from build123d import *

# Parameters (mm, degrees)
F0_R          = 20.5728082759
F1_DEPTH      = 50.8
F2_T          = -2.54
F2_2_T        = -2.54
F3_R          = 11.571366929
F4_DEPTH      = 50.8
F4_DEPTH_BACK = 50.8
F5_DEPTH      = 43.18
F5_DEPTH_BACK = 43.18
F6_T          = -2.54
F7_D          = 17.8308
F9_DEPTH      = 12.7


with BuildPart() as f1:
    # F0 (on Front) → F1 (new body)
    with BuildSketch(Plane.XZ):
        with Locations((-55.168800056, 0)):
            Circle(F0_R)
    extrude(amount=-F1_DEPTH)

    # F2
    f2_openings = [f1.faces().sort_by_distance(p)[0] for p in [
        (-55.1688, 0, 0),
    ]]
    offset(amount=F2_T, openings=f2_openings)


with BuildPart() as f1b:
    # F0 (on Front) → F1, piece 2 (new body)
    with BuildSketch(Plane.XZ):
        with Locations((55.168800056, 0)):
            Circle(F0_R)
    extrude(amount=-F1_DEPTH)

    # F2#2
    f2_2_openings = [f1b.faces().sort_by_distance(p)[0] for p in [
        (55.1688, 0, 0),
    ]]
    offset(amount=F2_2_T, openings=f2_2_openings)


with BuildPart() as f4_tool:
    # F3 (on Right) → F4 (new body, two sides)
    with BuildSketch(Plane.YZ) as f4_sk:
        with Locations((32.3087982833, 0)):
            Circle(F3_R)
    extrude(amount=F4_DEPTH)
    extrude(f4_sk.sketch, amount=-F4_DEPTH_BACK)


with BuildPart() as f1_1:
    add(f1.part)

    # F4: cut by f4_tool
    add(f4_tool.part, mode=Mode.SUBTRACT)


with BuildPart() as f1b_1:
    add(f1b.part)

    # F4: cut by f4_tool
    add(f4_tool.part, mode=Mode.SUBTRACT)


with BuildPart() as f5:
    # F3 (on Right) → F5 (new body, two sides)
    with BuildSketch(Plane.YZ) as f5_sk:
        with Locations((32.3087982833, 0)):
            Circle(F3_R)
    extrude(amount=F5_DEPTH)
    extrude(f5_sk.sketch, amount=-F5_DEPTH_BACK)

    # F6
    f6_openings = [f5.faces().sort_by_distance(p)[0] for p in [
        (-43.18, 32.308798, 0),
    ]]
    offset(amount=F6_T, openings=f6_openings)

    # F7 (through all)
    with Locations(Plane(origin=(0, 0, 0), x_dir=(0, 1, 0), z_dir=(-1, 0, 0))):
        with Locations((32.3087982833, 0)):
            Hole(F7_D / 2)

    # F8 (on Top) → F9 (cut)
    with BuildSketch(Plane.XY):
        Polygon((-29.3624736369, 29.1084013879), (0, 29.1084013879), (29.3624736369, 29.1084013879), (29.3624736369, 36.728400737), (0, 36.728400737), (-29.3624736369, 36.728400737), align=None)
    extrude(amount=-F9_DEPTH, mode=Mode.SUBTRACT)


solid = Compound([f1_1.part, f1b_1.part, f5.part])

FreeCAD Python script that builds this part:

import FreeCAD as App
import Part
import Sketcher
Q = App.Units.Quantity


def faces_at(feature, points):
    """Names of the faces that lie closest to the given points."""
    faces = feature.Shape.Faces
    near = lambda p: min(range(len(faces)), key=lambda i: faces[i].distToShape(Part.Vertex(*p))[0])
    return sorted({f"Face{near(p) + 1}" for p in points})


def add_polygon(sketch, points):
    """Adds a closed chain of lines whose ends are joined by coincident constraints."""
    first, n = sketch.GeometryCount, len(points)
    for a, b in zip(points, points[1:] + points[:1]):
        sketch.addGeometry(Part.LineSegment(App.Vector(*a, 0), App.Vector(*b, 0)), False)
    for i in range(n):
        sketch.addConstraint(Sketcher.Constraint("Coincident", first + i, 2, first + (i + 1) % n, 1))

doc = App.newDocument("Part")
body = doc.addObject("PartDesign::Body", "Body")

# Sketch on XZ plane
sketch1 = body.newObject("Sketcher::SketchObject", "Sketch")
sketch1.AttachmentSupport = (doc.getObject("XZ_Plane"), [""])
sketch1.MapMode = "FlatFace"
sketch1.addGeometry(Part.Circle(App.Vector(-55, 0, 0), App.Vector(0, 0, 1), 21), False)
sketch1.addConstraint([
    Sketcher.Constraint("PointOnObject", 0, 3, -1),
    Sketcher.Constraint("DistanceX", 0, 3, -1, 1, Q("2.172 in")),
    Sketcher.Constraint("Diameter", 0, Q("41.145617 mm")),
])
pad1 = body.newObject("PartDesign::Pad", "Pad")
pad1.Profile = sketch1
pad1.Length = Q("2 in")
pad1.Reversed = True
doc.recompute()

thickness = body.newObject("PartDesign::Thickness", "Thickness")
thickness.Base = (pad1, faces_at(pad1, [(-55.169, 0, 0)]))
thickness.Value = Q("0.1 in")
thickness.Reversed = True
thickness.Join = "Arc"
body2 = doc.addObject("PartDesign::Body", "Body001")

# Sketch on XZ plane
sketch2 = body2.newObject("Sketcher::SketchObject", "Sketch001")
sketch2.AttachmentSupport = (doc.getObject("XZ_Plane001"), [""])
sketch2.MapMode = "FlatFace"
sketch2.addGeometry(Part.Circle(App.Vector(55, 0, 0), App.Vector(0, 0, 1), 21), False)
sketch2.addConstraint([
    Sketcher.Constraint("PointOnObject", 0, 3, -1),
    Sketcher.Constraint("DistanceX", -1, 1, 0, 3, Q("2.172 in")),
    Sketcher.Constraint("Diameter", 0, Q("41.145617 mm")),
])
pad2 = body2.newObject("PartDesign::Pad", "Pad001")
pad2.Profile = sketch2
pad2.Length = Q("2 in")
pad2.Reversed = True
doc.recompute()

thickness2 = body2.newObject("PartDesign::Thickness", "Thickness001")
thickness2.Base = (pad2, faces_at(pad2, [(55.169, 0, 0)]))
thickness2.Value = Q("0.1 in")
thickness2.Reversed = True
thickness2.Join = "Arc"
body3 = doc.addObject("PartDesign::Body", "Body002")

# Sketch on YZ plane
sketch3 = body3.newObject("Sketcher::SketchObject", "Sketch002")
sketch3.AttachmentSupport = (doc.getObject("YZ_Plane002"), [""])
sketch3.MapMode = "FlatFace"
sketch3.addGeometry(Part.Circle(App.Vector(32, 0, 0), App.Vector(0, 0, 1), 12), False)
sketch3.addConstraint([
    Sketcher.Constraint("PointOnObject", 0, 3, -1),
    Sketcher.Constraint("DistanceX", -1, 1, 0, 3, Q("1.2719999 in")),
    Sketcher.Constraint("Diameter", 0, Q("23.142734 mm")),
])
pad3 = body3.newObject("PartDesign::Pad", "Pad002")
pad3.Profile = sketch3
pad3.Type = "TwoLengths"
pad3.Length = Q("2 in")
pad3.Length2 = Q("2 in")
doc.recompute()

body4 = doc.addObject("PartDesign::Body", "Body003")
body4.BaseFeature = body3
boolean = body.newObject("PartDesign::Boolean", "Boolean")
boolean.Type = "Cut"
boolean.addObjects([body4])
doc.recompute()

boolean2 = body2.newObject("PartDesign::Boolean", "Boolean001")
boolean2.Type = "Cut"
boolean2.addObjects([body3])
body5 = doc.addObject("PartDesign::Body", "Body004")

# Sketch on YZ plane
sketch4 = body5.newObject("Sketcher::SketchObject", "Sketch003")
sketch4.AttachmentSupport = (doc.getObject("YZ_Plane004"), [""])
sketch4.MapMode = "FlatFace"
sketch4.addGeometry(Part.Circle(App.Vector(32, 0, 0), App.Vector(0, 0, 1), 12), False)
sketch4.addConstraint([
    Sketcher.Constraint("PointOnObject", 0, 3, -1),
    Sketcher.Constraint("DistanceX", -1, 1, 0, 3, Q("1.2719999 in")),
    Sketcher.Constraint("Diameter", 0, Q("23.142734 mm")),
])
pad4 = body5.newObject("PartDesign::Pad", "Pad003")
pad4.Profile = sketch4
pad4.Type = "TwoLengths"
pad4.Length = Q("1.7 in")
pad4.Length2 = Q("1.7 in")
doc.recompute()

thickness3 = body5.newObject("PartDesign::Thickness", "Thickness002")
thickness3.Base = (pad4, faces_at(pad4, [(-43.18, 32.309, 0)]))
thickness3.Value = Q("0.1 in")
thickness3.Reversed = True
thickness3.Join = "Arc"

# Sketch on YZ plane
sketch5 = body5.newObject("Sketcher::SketchObject", "Sketch004")
sketch5.AttachmentSupport = (doc.getObject("YZ_Plane004"), [""])
sketch5.MapMode = "FlatFace"
sketch5.addGeometry(Part.Circle(App.Vector(32, 0, 0), App.Vector(0, 0, 1), 9), False)
sketch5.addConstraint([
    Sketcher.Constraint("PointOnObject", 0, 3, -1),
    Sketcher.Constraint("Diameter", 0, Q("0.702 in")),
    Sketcher.Constraint("DistanceX", -1, 1, 0, 3, Q("1.2719999 in")),
])
doc.recompute()
hole = body5.newObject("PartDesign::Hole", "Hole")
hole.Profile = sketch5
hole.ThreadType = "None"
hole.Diameter = Q("0.702 in")
hole.DepthType = "ThroughAll"
hole.Reversed = True

# Sketch on XY plane
sketch6 = body5.newObject("Sketcher::SketchObject", "Sketch005")
sketch6.AttachmentSupport = (doc.getObject("XY_Plane004"), [""])
sketch6.MapMode = "FlatFace"
add_polygon(sketch6, [(-29, 29), (29, 29), (29, 37), (-29, 37)])  # lines 0-3
sketch6.addConstraint([
    Sketcher.Constraint("Horizontal", 0),
    Sketcher.Constraint("Vertical", 1),
    Sketcher.Constraint("Horizontal", 2),
    Sketcher.Constraint("Vertical", 3),
    Sketcher.Constraint("DistanceY", 1, 1, 1, 2, Q("0.3 in")),
    Sketcher.Constraint("DistanceY", -1, 1, 0, 2, Q("1.1460001 in")),
    Sketcher.Constraint("DistanceX", 0, 1, 0, 2, Q("58.724947 mm")),
    Sketcher.Constraint("DistanceX", -1, 1, 0, 2, Q("29.362474 mm")),
])
pocket1 = body5.newObject("PartDesign::Pocket", "Pocket")
pocket1.Profile = sketch6
pocket1.Length = Q("0.5 in")

doc.recompute()
